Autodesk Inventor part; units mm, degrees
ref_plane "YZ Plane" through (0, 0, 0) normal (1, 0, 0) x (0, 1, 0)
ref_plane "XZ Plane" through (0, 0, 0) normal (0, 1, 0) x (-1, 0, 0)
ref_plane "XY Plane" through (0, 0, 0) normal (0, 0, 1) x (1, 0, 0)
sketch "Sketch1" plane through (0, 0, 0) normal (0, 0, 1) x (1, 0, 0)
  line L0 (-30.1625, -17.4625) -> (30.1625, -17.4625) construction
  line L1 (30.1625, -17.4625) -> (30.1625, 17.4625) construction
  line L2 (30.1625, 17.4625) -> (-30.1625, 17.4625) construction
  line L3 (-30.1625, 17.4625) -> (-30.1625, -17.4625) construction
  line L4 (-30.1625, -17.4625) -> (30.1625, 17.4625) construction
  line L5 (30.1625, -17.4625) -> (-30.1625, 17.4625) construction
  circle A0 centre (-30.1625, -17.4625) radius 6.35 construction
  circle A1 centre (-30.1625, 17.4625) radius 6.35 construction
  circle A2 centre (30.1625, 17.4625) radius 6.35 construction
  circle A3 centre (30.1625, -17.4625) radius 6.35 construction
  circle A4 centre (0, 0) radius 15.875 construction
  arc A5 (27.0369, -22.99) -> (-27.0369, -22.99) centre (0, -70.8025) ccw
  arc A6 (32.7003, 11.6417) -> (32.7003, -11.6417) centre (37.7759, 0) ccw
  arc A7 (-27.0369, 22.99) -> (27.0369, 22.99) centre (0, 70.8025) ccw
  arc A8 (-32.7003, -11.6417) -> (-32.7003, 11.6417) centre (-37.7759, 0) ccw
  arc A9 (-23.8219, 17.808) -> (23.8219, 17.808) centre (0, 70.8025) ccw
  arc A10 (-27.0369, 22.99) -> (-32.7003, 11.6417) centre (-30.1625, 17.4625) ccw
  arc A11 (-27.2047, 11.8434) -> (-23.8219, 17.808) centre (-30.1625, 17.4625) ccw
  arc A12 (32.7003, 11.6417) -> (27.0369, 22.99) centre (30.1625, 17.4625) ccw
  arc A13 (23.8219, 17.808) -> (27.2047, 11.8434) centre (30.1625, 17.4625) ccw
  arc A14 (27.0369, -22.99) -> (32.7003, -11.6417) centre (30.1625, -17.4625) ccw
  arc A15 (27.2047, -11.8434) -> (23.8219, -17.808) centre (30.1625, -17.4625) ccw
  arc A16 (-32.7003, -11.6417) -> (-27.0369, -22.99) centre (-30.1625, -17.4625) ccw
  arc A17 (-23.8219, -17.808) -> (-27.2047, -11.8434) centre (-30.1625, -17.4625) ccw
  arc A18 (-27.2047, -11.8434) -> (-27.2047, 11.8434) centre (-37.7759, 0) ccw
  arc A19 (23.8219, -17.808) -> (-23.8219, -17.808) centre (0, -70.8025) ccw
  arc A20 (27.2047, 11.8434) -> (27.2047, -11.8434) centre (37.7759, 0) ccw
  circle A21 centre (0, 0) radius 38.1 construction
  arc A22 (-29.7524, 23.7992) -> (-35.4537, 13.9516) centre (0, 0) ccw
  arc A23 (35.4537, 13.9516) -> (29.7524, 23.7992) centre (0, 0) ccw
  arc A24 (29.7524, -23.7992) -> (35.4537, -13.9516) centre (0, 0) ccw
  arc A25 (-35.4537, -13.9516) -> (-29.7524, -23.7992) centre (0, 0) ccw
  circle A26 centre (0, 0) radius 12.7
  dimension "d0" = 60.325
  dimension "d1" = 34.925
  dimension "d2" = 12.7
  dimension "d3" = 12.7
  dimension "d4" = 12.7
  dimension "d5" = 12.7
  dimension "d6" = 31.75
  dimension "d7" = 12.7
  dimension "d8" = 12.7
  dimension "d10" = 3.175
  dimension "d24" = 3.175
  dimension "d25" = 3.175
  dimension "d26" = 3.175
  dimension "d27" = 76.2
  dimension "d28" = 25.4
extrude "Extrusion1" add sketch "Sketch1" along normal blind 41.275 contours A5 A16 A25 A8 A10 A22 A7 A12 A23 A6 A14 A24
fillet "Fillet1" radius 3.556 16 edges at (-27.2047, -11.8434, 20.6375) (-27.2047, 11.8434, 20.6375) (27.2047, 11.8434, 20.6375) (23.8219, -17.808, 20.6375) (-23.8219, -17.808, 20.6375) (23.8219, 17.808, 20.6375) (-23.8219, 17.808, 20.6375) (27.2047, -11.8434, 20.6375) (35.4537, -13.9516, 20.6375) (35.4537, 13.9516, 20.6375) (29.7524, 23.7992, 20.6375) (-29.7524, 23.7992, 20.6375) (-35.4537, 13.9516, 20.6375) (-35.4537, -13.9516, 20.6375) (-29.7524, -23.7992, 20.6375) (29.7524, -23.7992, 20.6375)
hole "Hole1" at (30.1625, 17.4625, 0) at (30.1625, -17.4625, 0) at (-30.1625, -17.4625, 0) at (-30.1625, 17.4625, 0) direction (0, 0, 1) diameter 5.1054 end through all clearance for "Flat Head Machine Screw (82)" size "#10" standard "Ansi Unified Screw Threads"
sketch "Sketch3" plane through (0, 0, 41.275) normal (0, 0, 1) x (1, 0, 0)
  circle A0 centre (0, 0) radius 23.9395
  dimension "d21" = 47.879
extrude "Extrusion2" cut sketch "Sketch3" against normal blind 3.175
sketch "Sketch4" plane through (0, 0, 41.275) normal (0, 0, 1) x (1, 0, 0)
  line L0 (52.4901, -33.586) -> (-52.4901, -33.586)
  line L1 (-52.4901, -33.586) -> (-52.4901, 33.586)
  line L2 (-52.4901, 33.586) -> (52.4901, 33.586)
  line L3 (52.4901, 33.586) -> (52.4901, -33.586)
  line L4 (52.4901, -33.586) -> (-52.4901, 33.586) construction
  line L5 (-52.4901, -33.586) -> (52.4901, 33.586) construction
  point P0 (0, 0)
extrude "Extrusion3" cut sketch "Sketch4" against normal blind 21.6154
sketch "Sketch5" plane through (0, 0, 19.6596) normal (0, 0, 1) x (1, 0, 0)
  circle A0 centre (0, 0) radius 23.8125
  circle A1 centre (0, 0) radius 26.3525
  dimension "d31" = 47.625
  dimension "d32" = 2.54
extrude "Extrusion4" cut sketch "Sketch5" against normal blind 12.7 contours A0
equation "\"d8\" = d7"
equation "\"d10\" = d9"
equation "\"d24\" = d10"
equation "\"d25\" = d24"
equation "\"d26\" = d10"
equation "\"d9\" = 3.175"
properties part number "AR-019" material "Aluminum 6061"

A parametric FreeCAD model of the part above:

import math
import FreeCAD as App
import Part
import Sketcher
Q = App.Units.Quantity


def edges_at(feature, points):
    """Names of the edges that pass closest to the given points."""
    edges = feature.Shape.Edges
    near = lambda p: min(range(len(edges)), key=lambda i: edges[i].distToShape(Part.Vertex(*p))[0])
    return sorted({f"Edge{near(p) + 1}" for p in points})

doc = App.newDocument("Part")
params = doc.addObject("Spreadsheet::Sheet", "Params")
for row, (alias, value) in enumerate([
    ("sketch1_radius", "0.5 in"),
    ("sketch1_radius2", "0.25 in"),
    ("sketch1_radius3", "0.625 in"),
    ("pad1_length", "1.625 in"),
    ("fillet_radius", "0.14 in"),
    ("sketch2_diameter", "0.201 in"),
    ("hole_diameter", "0.201 in"),
    ("sketch3_diameter", "1.885 in"),
    ("pocket1_length", "0.125 in"),
    ("pocket2_length", "0.851 in"),
    ("sketch5_diameter", "1.875 in"),
    ("pocket3_length", "0.5 in"),
], start=1):
    params.set(f"A{row}", alias)
    params.set(f"B{row}", "=" + value)
    params.setAlias(f"B{row}", alias)

body = doc.addObject("PartDesign::Body", "Body")

# Sketch on XY plane
sketch1 = body.newObject("Sketcher::SketchObject", "Sketch")
sketch1.AttachmentSupport = (doc.getObject("XY_Plane"), [""])
sketch1.MapMode = "FlatFace"
sketch1.addGeometry([
    Part.ArcOfCircle(Part.Circle(App.Vector(0, -70.8025, 0), App.Vector(0, 0, 1), 54.92749), math.radians(60.512811), math.radians(119.487189)),  # 0
    Part.ArcOfCircle(Part.Circle(App.Vector(30.1625, -17.4625, 0), App.Vector(0, 0, 1), 6.35), math.radians(-119.486579), math.radians(-93.702917)),  # 1
    Part.ArcOfCircle(Part.Circle(App.Vector(-0.002306, 0.001577, 0), App.Vector(0, 0, 1), 38.102749), math.radians(-38.6563), math.radians(-21.481371)),  # 2
    Part.ArcOfCircle(Part.Circle(App.Vector(30.1625, -17.4625, 0), App.Vector(0, 0, 1), 6.35), math.radians(33.565693), math.radians(66.443367)),  # 3
    Part.ArcOfCircle(Part.Circle(App.Vector(37.7759, 0, 0), App.Vector(0, 0, 1), 12.700035), math.radians(113.556452), math.radians(246.443548)),  # 4
    Part.ArcOfCircle(Part.Circle(App.Vector(30.1625, 17.4625, 0), App.Vector(0, 0, 1), 6.35), math.radians(-66.443367), math.radians(-33.565693)),  # 5
    Part.ArcOfCircle(Part.Circle(App.Vector(0.002515, 0.001215, 0), App.Vector(0, 0, 1), 38.097241), math.radians(21.48012), math.radians(38.657551)),  # 6
    Part.ArcOfCircle(Part.Circle(App.Vector(30.1625, 17.4625, 0), App.Vector(0, 0, 1), 6.35), math.radians(93.702917), math.radians(119.486579)),  # 7
    Part.ArcOfCircle(Part.Circle(App.Vector(0, 70.8025, 0), App.Vector(0, 0, 1), 54.92749), math.radians(-119.487189), math.radians(-60.512811)),  # 8
    Part.ArcOfCircle(Part.Circle(App.Vector(-30.1625, 17.4625, 0), App.Vector(0, 0, 1), 6.35), math.radians(60.513421), math.radians(86.297083)),  # 9
    Part.ArcOfCircle(Part.Circle(App.Vector(0.002306, -0.001577, 0), App.Vector(0, 0, 1), 38.102749), math.radians(141.3437), math.radians(158.518629)),  # 10
    Part.ArcOfCircle(Part.Circle(App.Vector(-30.1625, 17.4625, 0), App.Vector(0, 0, 1), 6.35), math.radians(-146.434307), math.radians(-113.556633)),  # 11
    Part.ArcOfCircle(Part.Circle(App.Vector(-37.7759, 0, 0), App.Vector(0, 0, 1), 12.700035), math.radians(-66.443548), math.radians(66.443548)),  # 12
    Part.ArcOfCircle(Part.Circle(App.Vector(-30.1625, -17.4625, 0), App.Vector(0, 0, 1), 6.35), math.radians(113.556633), math.radians(146.434307)),  # 13
    Part.ArcOfCircle(Part.Circle(App.Vector(-0.002515, -0.001215, 0), App.Vector(0, 0, 1), 38.097241), math.radians(-158.51988), math.radians(-141.342449)),  # 14
    Part.ArcOfCircle(Part.Circle(App.Vector(-30.1625, -17.4625, 0), App.Vector(0, 0, 1), 6.35), math.radians(-86.297083), math.radians(-60.513421)),  # 15
    Part.ArcOfCircle(Part.Circle(App.Vector(-30.1625, 17.4625, 0), App.Vector(0, 0, 1), 6.35), math.radians(-62.238434), math.radians(3.118969)),  # 16
    Part.ArcOfCircle(Part.Circle(App.Vector(0, 70.8025, 0), App.Vector(0, 0, 1), 58.102495), math.radians(-114.204702), math.radians(-65.795298)),  # 17
    Part.ArcOfCircle(Part.Circle(App.Vector(30.1625, 17.4625, 0), App.Vector(0, 0, 1), 6.350006), math.radians(176.881031), math.radians(242.238434)),  # 18
    Part.ArcOfCircle(Part.Circle(App.Vector(37.7759, 0, 0), App.Vector(0, 0, 1), 15.875024), math.radians(131.751512), math.radians(228.248488)),  # 19
    Part.ArcOfCircle(Part.Circle(App.Vector(30.1625, -17.4625, 0), App.Vector(0, 0, 1), 6.35), math.radians(117.761566), math.radians(183.118969)),  # 20
    Part.ArcOfCircle(Part.Circle(App.Vector(0, -70.8025, 0), App.Vector(0, 0, 1), 58.102495), math.radians(65.795298), math.radians(114.204702)),  # 21
    Part.ArcOfCircle(Part.Circle(App.Vector(-30.1625, -17.4625, 0), App.Vector(0, 0, 1), 6.350006), math.radians(-3.118969), math.radians(62.238434)),  # 22
    Part.ArcOfCircle(Part.Circle(App.Vector(-37.7759, 0, 0), App.Vector(0, 0, 1), 15.875024), math.radians(-48.248488), math.radians(48.248488)),  # 23
], False)
sketch1.addConstraint([
    Sketcher.Constraint("Tangent", 0, 1, 1, 1),
    Sketcher.Constraint("Coincident", 1, 2, 2, 1),
    Sketcher.Constraint("Coincident", 2, 2, 3, 1),
    Sketcher.Constraint("Tangent", 3, 2, 4, 2),
    Sketcher.Constraint("Tangent", 4, 1, 5, 1),
    Sketcher.Constraint("Coincident", 5, 2, 6, 1),
    Sketcher.Constraint("Coincident", 6, 2, 7, 1),
    Sketcher.Constraint("Tangent", 7, 2, 8, 2),
    Sketcher.Constraint("Tangent", 8, 1, 9, 1),
    Sketcher.Constraint("Coincident", 9, 2, 10, 1),
    Sketcher.Constraint("Coincident", 10, 2, 11, 1),
    Sketcher.Constraint("Tangent", 11, 2, 12, 2),
    Sketcher.Constraint("Tangent", 12, 1, 13, 1),
    Sketcher.Constraint("Coincident", 13, 2, 14, 1),
    Sketcher.Constraint("Coincident", 14, 2, 15, 1),
    Sketcher.Constraint("Tangent", 15, 2, 0, 2),
    Sketcher.Constraint("Coincident", 16, 2, 17, 1),
    Sketcher.Constraint("Coincident", 17, 2, 18, 1),
    Sketcher.Constraint("Coincident", 18, 2, 19, 1),
    Sketcher.Constraint("Coincident", 19, 2, 20, 1),
    Sketcher.Constraint("Coincident", 20, 2, 21, 1),
    Sketcher.Constraint("Coincident", 21, 2, 22, 1),
    Sketcher.Constraint("Coincident", 22, 2, 23, 1),
    Sketcher.Constraint("Coincident", 23, 2, 16, 1),
    Sketcher.Constraint("Coincident", 3, 3, 1, 3),
    Sketcher.Constraint("Coincident", 7, 3, 5, 3),
    Sketcher.Constraint("Coincident", 11, 3, 9, 3),
    Sketcher.Constraint("Coincident", 15, 3, 13, 3),
    Sketcher.Constraint("Coincident", 16, 3, 9, 3),
    Sketcher.Constraint("Coincident", 17, 3, 8, 3),
    Sketcher.Constraint("Coincident", 18, 3, 5, 3),
    Sketcher.Constraint("Coincident", 19, 3, 4, 3),
    Sketcher.Constraint("Coincident", 20, 3, 1, 3),
    Sketcher.Constraint("Coincident", 21, 3, 0, 3),
    Sketcher.Constraint("Coincident", 22, 3, 13, 3),
    Sketcher.Constraint("Coincident", 23, 3, 12, 3),
    Sketcher.Constraint("Equal", 1, 3),
    Sketcher.Constraint("Equal", 3, 5),
    Sketcher.Constraint("Equal", 5, 7),
    Sketcher.Constraint("Equal", 0, 8),
    Sketcher.Constraint("Equal", 7, 9),
    Sketcher.Constraint("Equal", 2, 10),
    Sketcher.Constraint("Equal", 9, 11),
    Sketcher.Constraint("Equal", 4, 12),
    Sketcher.Constraint("Equal", 11, 13),
    Sketcher.Constraint("Equal", 6, 14),
    Sketcher.Constraint("Equal", 13, 15),
    Sketcher.Constraint("Equal", 15, 16),
    Sketcher.Constraint("Equal", 16, 18),
    Sketcher.Constraint("Equal", 18, 20),
    Sketcher.Constraint("Equal", 17, 21),
    Sketcher.Constraint("Equal", 20, 22),
    Sketcher.Constraint("Equal", 19, 23),
    Sketcher.Constraint("Symmetric", 0, 3, 8, 3, -1, 1),
    Sketcher.Constraint("Symmetric", 2, 3, 10, 3, -1, 1),
    Sketcher.Constraint("Symmetric", 4, 3, 12, 3, -1, 1),
    Sketcher.Constraint("Symmetric", 6, 3, 14, 3, -1, 1),
    Sketcher.Constraint("Symmetric", 5, 3, 9, 3, -2),
    Sketcher.Constraint("Horizontal", 6, 2, 9, 2),
    Sketcher.Constraint("Horizontal", 5, 2, 10, 2),
    Sketcher.Constraint("Radius", 4, Q("0.5 in")),
    Sketcher.Constraint("Radius", 1, Q("0.25 in")),
    Sketcher.Constraint("Radius", 19, Q("0.625 in")),
    Sketcher.Constraint("DistanceY", 1, 3, 5, 3, Q("1.375 in")),
    Sketcher.Constraint("DistanceX", 9, 3, 5, 3, Q("2.375 in")),
    Sketcher.Constraint("DistanceX", 10, 3, 6, 3, Q("0 in")),
    Sketcher.Constraint("Radius", 0, Q("2.1625 in")),
    Sketcher.Constraint("Radius", 2, Q("1.5001 in")),
    Sketcher.Constraint("Radius", 6, Q("1.4999 in")),
    Sketcher.Constraint("Radius", 17, Q("2.2875 in")),
    Sketcher.Constraint("DistanceY", 2, 2, 19, 2, Q("0.083 in")),
])
sketch1.setExpression("Constraints[60]", "Params.sketch1_radius")
sketch1.setExpression("Constraints[61]", "Params.sketch1_radius2")
sketch1.setExpression("Constraints[62]", "Params.sketch1_radius3")
pad1 = body.newObject("PartDesign::Pad", "Pad")
pad1.Profile = sketch1
pad1.setExpression("Length", "Params.pad1_length")
doc.recompute()

fillet = body.newObject("PartDesign::Fillet", "Fillet")
fillet.Base = (pad1, edges_at(pad1, [
    (-27.205, -11.843, 20.637),
    (-27.205, 11.843, 20.637),
    (27.205, 11.843, 20.637),
    (23.822, -17.808, 20.637),
    (-23.822, -17.808, 20.637),
    (23.822, 17.808, 20.637),
    (-23.822, 17.808, 20.637),
    (27.205, -11.843, 20.637),
    (35.454, -13.952, 20.637),
    (35.454, 13.952, 20.637),
    (29.752, 23.799, 20.637),
    (-29.752, 23.799, 20.637),
    (-35.454, 13.952, 20.637),
    (-35.454, -13.952, 20.637),
    (-29.752, -23.799, 20.637),
    (29.752, -23.799, 20.637),
]))
fillet.setExpression("Radius", "Params.fillet_radius")

# Sketch on XY plane
sketch2 = body.newObject("Sketcher::SketchObject", "Sketch001")
sketch2.AttachmentSupport = (doc.getObject("XY_Plane"), [""])
sketch2.MapMode = "FlatFace"
sketch2.addGeometry([
    Part.Circle(App.Vector(30.2, 17.5, 0), App.Vector(0, 0, 1), 2.6),
    Part.Circle(App.Vector(30.2, -17.5, 0), App.Vector(0, 0, 1), 2.6),
    Part.Circle(App.Vector(-30.2, -17.5, 0), App.Vector(0, 0, 1), 2.6),
    Part.Circle(App.Vector(-30.2, 17.5, 0), App.Vector(0, 0, 1), 2.6),
], False)
sketch2.addConstraint([
    Sketcher.Constraint("Equal", 0, 1),
    Sketcher.Constraint("Equal", 1, 2),
    Sketcher.Constraint("Equal", 2, 3),
    Sketcher.Constraint("Symmetric", 0, 3, 2, 3, -1, 1),
    Sketcher.Constraint("Symmetric", 1, 3, 3, 3, -1, 1),
    Sketcher.Constraint("Symmetric", 1, 3, 2, 3, -2),
    Sketcher.Constraint("Diameter", 0, Q("0.201 in")),
    Sketcher.Constraint("DistanceX", -1, 1, 0, 3, Q("1.1875 in")),
    Sketcher.Constraint("DistanceY", -1, 1, 0, 3, Q("0.6875 in")),
])
sketch2.setExpression("Constraints[6]", "Params.sketch2_diameter")
doc.recompute()
hole = body.newObject("PartDesign::Hole", "Hole")
hole.Profile = sketch2
hole.ThreadType = "None"
hole.setExpression("Diameter", "Params.hole_diameter")
hole.DepthType = "ThroughAll"
hole.Reversed = True

# Sketch on XY plane
sketch3 = body.newObject("Sketcher::SketchObject", "Sketch002")
sketch3.AttachmentSupport = (doc.getObject("XY_Plane"), [""])
sketch3.MapMode = "FlatFace"
sketch3.AttachmentOffset = App.Placement(App.Vector(0, 0, 1.625 * 25.4), App.Rotation())
sketch3.addGeometry(Part.Circle(App.Vector(0, 0, 0), App.Vector(0, 0, 1), 24), False)
sketch3.addConstraint([
    Sketcher.Constraint("Coincident", 0, 3, -1, 1),
    Sketcher.Constraint("Diameter", 0, Q("1.885 in")),
])
sketch3.setExpression("Constraints[1]", "Params.sketch3_diameter")
pocket1 = body.newObject("PartDesign::Pocket", "Pocket")
pocket1.Profile = sketch3
pocket1.setExpression("Length", "Params.pocket1_length")

# Sketch on XY plane
sketch4 = body.newObject("Sketcher::SketchObject", "Sketch003")
sketch4.AttachmentSupport = (doc.getObject("XY_Plane"), [""])
sketch4.MapMode = "FlatFace"
sketch4.AttachmentOffset = App.Placement(App.Vector(0, 0, 1.625 * 25.4), App.Rotation())
sketch4.addGeometry([
    Part.LineSegment(App.Vector(-52, -34, 0), App.Vector(52, -34, 0)),
    Part.LineSegment(App.Vector(52, -34, 0), App.Vector(52, 34, 0)),
    Part.LineSegment(App.Vector(52, 34, 0), App.Vector(-52, 34, 0)),
    Part.LineSegment(App.Vector(-52, 34, 0), App.Vector(-52, -34, 0)),
], False)
sketch4.addConstraint([
    Sketcher.Constraint("Coincident", 0, 2, 1, 1),
    Sketcher.Constraint("Coincident", 1, 2, 2, 1),
    Sketcher.Constraint("Coincident", 2, 2, 3, 1),
    Sketcher.Constraint("Coincident", 3, 2, 0, 1),
    Sketcher.Constraint("Horizontal", 0),
    Sketcher.Constraint("Vertical", 1),
    Sketcher.Constraint("Horizontal", 2),
    Sketcher.Constraint("Vertical", 3),
    Sketcher.Constraint("Symmetric", 0, 2, 2, 2, -1, 1),
    Sketcher.Constraint("DistanceX", 0, 1, 0, 2, 104.9802),
    Sketcher.Constraint("DistanceY", 1, 1, 1, 2, 67.172),
])
pocket2 = body.newObject("PartDesign::Pocket", "Pocket001")
pocket2.Profile = sketch4
pocket2.setExpression("Length", "Params.pocket2_length")

# Sketch on XY plane
sketch5 = body.newObject("Sketcher::SketchObject", "Sketch004")
sketch5.AttachmentSupport = (doc.getObject("XY_Plane"), [""])
sketch5.MapMode = "FlatFace"
sketch5.AttachmentOffset = App.Placement(App.Vector(0, 0, 0.774 * 25.4), App.Rotation())
sketch5.addGeometry(Part.Circle(App.Vector(0, 0, 0), App.Vector(0, 0, 1), 24), False)
sketch5.addConstraint([
    Sketcher.Constraint("Coincident", 0, 3, -1, 1),
    Sketcher.Constraint("Diameter", 0, Q("1.875 in")),
])
sketch5.setExpression("Constraints[1]", "Params.sketch5_diameter")
pocket3 = body.newObject("PartDesign::Pocket", "Pocket002")
pocket3.Profile = sketch5
pocket3.setExpression("Length", "Params.pocket3_length")

doc.recompute()
